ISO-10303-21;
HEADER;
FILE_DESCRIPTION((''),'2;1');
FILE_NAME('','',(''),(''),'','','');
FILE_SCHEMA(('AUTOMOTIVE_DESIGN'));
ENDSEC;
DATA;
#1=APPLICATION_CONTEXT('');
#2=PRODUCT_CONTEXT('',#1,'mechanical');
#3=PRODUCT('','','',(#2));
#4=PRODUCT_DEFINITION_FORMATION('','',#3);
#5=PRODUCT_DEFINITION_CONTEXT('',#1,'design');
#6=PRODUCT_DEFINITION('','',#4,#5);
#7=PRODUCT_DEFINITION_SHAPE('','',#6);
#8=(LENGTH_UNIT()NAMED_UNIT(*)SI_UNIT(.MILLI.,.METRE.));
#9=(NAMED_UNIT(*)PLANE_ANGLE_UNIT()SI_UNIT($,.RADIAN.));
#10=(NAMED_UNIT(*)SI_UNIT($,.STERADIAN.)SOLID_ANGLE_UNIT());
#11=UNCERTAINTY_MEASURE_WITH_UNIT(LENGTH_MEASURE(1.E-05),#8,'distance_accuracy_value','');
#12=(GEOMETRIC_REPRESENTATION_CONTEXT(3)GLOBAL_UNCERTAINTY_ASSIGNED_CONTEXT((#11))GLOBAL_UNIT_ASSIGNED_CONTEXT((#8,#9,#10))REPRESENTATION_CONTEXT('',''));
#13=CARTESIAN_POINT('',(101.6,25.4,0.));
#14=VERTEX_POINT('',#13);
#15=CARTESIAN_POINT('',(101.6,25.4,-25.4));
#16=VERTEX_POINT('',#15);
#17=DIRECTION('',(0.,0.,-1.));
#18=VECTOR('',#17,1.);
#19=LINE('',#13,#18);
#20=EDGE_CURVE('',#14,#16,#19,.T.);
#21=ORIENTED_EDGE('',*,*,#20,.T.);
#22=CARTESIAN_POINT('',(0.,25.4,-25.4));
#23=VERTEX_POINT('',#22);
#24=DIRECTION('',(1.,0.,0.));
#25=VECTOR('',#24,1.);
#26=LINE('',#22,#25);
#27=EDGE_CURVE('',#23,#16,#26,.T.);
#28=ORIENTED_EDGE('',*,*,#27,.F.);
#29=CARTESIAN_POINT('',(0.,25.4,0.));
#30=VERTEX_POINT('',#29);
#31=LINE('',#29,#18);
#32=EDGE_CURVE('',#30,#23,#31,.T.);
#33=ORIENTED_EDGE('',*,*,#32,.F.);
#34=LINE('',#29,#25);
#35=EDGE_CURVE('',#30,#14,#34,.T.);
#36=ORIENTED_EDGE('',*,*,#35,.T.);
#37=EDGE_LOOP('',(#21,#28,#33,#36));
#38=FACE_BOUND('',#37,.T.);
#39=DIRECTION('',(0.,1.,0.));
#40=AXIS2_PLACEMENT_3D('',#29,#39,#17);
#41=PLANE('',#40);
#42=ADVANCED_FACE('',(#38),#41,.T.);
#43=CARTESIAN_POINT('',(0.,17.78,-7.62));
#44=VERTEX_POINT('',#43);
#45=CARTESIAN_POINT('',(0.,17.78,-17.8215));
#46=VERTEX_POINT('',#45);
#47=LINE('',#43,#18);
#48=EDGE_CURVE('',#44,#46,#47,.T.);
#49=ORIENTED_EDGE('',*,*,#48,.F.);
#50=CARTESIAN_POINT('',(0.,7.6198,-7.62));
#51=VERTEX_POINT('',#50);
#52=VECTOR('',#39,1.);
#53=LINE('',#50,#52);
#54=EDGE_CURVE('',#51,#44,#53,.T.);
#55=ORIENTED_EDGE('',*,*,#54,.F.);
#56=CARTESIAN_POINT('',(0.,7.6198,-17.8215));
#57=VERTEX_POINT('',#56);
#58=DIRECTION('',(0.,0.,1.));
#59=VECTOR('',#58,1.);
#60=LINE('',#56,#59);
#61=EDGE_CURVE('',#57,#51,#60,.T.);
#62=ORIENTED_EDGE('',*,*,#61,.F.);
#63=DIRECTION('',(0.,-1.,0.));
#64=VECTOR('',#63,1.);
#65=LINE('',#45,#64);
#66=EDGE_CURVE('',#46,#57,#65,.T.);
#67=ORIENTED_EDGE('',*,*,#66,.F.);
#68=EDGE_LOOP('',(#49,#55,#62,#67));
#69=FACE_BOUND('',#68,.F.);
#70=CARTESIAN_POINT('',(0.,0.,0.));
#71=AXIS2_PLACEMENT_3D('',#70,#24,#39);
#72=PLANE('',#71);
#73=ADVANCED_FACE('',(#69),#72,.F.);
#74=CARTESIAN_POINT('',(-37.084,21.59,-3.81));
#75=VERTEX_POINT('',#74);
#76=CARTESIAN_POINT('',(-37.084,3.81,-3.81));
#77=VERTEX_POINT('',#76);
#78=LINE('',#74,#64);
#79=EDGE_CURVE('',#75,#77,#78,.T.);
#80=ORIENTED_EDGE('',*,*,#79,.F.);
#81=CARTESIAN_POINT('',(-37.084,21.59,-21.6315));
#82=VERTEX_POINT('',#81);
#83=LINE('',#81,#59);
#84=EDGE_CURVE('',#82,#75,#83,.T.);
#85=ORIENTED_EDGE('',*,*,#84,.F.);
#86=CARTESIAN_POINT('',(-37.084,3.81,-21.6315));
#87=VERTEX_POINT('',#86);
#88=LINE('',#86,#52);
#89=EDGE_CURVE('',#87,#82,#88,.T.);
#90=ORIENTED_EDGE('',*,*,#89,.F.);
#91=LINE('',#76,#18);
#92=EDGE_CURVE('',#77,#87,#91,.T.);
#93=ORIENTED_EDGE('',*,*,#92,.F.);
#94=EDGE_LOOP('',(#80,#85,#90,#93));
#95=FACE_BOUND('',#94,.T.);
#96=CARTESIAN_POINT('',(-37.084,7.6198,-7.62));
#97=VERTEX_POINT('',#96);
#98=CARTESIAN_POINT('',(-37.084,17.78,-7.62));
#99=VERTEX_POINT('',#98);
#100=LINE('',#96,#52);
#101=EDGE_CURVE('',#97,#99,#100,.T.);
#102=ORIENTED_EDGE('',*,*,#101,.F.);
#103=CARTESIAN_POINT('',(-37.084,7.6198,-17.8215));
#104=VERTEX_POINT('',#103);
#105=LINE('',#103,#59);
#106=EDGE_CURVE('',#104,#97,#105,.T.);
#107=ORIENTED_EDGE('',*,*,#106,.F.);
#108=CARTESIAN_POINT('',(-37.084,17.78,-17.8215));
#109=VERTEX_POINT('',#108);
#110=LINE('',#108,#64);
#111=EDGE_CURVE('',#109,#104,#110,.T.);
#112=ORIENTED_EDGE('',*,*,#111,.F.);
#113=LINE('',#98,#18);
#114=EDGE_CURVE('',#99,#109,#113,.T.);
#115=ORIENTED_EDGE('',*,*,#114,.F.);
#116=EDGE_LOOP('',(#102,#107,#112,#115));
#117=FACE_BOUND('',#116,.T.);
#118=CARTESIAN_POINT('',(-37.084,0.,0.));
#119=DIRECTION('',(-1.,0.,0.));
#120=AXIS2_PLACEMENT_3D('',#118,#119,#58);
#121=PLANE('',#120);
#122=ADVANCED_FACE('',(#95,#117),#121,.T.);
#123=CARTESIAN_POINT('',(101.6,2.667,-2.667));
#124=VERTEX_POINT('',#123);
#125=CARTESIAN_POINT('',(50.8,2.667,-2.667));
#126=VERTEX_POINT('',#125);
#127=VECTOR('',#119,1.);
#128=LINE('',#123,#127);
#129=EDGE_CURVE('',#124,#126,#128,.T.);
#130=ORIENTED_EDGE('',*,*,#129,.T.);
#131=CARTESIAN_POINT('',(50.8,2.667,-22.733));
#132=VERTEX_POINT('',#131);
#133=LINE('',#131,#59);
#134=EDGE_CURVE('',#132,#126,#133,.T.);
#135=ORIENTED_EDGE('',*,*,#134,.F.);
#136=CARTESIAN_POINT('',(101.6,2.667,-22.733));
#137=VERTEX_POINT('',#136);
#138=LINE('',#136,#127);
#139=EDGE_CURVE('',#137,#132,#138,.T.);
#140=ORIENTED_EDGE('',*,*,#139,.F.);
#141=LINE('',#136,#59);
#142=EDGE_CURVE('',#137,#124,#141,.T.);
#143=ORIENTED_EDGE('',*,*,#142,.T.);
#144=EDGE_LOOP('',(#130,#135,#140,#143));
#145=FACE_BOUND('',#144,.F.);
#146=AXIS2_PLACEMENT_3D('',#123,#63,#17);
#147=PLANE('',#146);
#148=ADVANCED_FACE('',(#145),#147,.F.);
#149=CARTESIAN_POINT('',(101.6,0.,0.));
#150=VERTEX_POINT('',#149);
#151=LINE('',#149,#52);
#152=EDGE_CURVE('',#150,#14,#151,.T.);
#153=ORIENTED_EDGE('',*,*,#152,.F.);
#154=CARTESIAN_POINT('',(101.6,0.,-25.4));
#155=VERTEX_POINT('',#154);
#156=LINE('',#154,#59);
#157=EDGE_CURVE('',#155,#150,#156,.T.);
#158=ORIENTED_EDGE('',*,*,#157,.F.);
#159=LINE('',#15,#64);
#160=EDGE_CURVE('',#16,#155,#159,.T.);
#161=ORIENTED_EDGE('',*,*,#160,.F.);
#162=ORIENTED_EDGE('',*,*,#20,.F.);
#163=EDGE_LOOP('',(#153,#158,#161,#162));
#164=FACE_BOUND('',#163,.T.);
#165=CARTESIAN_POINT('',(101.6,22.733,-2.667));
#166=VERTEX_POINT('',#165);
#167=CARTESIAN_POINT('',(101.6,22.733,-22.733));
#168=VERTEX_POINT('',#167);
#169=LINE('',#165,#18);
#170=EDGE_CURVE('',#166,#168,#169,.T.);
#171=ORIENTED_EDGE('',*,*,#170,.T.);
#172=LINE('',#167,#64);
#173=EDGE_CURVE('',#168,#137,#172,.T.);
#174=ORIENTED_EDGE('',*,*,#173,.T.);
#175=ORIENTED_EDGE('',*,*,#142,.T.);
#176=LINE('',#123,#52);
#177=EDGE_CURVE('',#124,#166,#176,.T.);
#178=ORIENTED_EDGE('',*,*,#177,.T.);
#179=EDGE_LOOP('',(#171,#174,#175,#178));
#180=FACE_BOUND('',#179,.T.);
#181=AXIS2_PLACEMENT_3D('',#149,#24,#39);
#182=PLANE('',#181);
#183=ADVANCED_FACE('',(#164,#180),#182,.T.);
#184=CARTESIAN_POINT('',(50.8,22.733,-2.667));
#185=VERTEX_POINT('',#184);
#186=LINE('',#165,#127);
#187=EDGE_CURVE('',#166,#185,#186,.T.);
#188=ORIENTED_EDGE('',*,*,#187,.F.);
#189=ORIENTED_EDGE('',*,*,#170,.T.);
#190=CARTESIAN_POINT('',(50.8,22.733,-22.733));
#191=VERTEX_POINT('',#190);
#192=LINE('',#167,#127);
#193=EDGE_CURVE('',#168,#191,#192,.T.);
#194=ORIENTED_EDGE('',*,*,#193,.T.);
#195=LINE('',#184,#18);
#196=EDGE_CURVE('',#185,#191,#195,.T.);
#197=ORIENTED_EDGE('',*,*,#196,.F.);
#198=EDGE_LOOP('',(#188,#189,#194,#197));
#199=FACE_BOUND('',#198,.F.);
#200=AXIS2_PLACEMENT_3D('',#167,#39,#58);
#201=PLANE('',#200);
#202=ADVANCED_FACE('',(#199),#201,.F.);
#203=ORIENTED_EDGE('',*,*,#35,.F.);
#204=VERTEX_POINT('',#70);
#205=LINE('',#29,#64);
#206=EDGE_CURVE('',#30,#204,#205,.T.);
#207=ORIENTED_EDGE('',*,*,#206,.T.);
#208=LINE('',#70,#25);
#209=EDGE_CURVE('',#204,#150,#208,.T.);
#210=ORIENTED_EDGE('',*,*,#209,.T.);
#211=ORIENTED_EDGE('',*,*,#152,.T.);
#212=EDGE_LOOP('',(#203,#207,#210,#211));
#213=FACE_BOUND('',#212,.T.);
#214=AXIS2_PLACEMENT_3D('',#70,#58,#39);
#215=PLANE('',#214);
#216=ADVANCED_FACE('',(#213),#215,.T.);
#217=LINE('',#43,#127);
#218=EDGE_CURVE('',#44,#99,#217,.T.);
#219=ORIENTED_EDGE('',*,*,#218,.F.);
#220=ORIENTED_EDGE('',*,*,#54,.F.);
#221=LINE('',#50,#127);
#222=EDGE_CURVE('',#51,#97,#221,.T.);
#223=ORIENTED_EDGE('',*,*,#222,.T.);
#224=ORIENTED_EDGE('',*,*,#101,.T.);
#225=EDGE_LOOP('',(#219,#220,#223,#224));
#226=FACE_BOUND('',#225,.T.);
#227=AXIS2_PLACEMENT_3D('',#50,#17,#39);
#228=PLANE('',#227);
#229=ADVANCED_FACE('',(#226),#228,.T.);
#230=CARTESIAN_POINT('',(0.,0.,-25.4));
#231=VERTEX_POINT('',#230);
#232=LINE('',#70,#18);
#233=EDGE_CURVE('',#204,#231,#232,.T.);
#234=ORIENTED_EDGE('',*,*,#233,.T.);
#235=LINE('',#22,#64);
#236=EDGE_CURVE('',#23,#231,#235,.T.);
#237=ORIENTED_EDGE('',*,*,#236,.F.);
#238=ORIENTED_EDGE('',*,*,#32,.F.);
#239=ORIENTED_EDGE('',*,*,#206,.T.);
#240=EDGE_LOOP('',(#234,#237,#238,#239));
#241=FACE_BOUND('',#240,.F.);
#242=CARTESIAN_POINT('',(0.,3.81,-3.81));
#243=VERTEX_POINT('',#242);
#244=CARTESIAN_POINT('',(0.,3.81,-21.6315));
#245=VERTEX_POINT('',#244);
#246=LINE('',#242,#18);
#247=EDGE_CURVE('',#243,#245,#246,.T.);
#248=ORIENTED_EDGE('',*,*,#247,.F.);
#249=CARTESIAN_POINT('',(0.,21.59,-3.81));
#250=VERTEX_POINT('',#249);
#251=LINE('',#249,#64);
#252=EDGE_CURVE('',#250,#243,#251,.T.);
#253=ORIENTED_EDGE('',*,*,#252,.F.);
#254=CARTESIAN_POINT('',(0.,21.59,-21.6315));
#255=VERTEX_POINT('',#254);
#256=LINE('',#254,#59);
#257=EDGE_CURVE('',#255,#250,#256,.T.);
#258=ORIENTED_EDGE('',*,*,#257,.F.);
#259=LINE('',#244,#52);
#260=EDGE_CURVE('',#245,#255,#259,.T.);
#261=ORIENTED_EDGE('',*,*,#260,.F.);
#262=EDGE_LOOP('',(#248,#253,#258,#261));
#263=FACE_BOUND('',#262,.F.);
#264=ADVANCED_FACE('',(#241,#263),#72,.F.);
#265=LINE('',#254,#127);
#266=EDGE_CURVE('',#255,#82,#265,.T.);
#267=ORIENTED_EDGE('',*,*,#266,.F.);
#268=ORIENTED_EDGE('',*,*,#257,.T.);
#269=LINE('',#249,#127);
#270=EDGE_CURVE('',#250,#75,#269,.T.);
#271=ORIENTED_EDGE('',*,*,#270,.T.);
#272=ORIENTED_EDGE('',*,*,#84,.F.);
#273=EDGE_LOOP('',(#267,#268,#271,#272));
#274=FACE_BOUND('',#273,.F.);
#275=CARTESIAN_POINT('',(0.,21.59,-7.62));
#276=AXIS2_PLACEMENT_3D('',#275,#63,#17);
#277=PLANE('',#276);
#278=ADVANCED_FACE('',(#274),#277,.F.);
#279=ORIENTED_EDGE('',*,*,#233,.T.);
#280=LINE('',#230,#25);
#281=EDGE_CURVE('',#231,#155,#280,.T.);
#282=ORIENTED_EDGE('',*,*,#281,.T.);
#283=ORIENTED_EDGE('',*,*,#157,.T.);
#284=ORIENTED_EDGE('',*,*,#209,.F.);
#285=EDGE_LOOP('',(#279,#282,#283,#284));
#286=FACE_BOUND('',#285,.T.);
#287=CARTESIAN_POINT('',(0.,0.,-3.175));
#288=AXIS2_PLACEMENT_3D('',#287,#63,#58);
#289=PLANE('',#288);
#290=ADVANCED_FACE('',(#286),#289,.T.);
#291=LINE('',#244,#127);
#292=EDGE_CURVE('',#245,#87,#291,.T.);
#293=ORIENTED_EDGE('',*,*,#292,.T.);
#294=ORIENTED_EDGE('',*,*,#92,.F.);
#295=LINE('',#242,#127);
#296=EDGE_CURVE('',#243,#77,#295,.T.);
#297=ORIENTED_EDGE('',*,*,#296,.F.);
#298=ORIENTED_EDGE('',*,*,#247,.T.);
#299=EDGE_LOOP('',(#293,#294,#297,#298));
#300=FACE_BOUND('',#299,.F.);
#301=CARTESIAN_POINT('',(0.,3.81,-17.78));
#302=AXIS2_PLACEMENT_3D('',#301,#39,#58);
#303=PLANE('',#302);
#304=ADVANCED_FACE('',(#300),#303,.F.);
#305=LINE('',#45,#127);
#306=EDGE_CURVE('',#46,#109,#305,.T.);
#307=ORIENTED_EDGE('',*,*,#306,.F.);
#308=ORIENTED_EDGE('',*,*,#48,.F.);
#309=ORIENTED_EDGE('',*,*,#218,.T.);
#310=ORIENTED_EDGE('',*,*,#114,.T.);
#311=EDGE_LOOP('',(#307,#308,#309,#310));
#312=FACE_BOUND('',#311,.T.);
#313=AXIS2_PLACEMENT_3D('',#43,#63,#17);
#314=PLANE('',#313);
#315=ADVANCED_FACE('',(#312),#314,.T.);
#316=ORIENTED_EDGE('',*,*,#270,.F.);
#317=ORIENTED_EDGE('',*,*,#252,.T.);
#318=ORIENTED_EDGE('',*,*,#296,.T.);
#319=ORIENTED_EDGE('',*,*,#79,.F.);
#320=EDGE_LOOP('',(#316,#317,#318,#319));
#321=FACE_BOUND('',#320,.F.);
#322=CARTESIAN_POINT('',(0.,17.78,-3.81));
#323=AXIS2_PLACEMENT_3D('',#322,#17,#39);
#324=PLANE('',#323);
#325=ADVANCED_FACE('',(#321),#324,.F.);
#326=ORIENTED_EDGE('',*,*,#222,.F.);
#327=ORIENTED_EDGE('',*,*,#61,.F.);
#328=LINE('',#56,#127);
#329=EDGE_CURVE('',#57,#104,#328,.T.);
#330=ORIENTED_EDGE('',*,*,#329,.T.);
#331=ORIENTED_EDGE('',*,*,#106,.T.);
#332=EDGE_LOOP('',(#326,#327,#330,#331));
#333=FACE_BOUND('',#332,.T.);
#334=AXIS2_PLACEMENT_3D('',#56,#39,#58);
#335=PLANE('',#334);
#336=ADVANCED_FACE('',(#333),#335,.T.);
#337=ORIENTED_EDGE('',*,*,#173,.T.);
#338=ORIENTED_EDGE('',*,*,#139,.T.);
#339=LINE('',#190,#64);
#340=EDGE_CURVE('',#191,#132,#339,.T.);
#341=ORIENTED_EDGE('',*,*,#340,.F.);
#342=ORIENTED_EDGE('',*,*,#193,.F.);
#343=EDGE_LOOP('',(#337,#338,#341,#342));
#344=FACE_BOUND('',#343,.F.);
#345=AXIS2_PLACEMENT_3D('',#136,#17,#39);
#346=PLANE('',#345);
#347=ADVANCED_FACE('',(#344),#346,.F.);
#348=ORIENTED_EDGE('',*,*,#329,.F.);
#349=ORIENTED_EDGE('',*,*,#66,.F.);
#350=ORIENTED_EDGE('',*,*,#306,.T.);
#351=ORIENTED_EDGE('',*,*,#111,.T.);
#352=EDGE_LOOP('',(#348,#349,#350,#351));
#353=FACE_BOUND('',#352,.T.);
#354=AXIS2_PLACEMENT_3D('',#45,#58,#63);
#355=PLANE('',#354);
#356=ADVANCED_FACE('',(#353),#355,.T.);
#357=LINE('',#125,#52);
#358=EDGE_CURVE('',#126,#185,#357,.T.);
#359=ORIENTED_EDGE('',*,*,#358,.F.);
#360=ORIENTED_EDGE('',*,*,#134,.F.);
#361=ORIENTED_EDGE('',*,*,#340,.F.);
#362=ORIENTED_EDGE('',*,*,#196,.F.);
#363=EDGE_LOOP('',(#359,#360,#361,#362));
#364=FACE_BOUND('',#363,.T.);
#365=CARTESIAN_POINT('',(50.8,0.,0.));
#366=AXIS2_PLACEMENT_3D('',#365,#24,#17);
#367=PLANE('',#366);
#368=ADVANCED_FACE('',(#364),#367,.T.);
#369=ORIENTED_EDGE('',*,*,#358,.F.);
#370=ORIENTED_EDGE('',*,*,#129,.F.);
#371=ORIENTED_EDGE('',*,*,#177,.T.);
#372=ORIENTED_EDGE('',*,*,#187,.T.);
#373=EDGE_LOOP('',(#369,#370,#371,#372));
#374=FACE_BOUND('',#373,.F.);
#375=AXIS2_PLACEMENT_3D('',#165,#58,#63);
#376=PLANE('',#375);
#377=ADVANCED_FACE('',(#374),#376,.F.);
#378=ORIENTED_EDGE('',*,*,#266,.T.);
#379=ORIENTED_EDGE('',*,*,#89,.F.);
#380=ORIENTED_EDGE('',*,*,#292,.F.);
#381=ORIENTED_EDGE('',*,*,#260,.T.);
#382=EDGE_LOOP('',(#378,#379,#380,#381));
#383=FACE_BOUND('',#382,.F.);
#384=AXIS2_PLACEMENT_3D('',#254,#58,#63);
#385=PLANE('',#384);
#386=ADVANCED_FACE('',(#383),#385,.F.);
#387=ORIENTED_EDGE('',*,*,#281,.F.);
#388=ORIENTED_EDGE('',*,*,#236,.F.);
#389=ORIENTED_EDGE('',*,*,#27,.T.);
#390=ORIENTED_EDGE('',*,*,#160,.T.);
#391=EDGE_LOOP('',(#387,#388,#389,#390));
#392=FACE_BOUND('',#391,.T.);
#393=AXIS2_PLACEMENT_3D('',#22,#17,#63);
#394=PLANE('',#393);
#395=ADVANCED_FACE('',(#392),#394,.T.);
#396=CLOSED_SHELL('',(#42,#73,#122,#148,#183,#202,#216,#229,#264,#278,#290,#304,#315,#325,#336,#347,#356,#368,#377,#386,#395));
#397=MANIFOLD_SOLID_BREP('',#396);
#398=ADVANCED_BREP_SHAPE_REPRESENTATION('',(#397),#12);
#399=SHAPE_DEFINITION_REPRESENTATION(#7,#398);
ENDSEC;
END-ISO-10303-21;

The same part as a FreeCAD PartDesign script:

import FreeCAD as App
import Part
import Sketcher
from FreeCAD import Vector
Q = App.Units.Quantity

doc = App.newDocument("Part")
body = doc.addObject("PartDesign::Body", "Body")

# Sketch on YZ plane
sketch1 = body.newObject("Sketcher::SketchObject", "Sketch")
sketch1.AttachmentSupport = (doc.getObject("YZ_Plane"), [""])
sketch1.MapMode = "FlatFace"
sketch1.addGeometry([
    Part.LineSegment(Vector(0, 0, 0), Vector(0, -25, 0)),
    Part.LineSegment(Vector(0, -25, 0), Vector(25, -25, 0)),
    Part.LineSegment(Vector(25, -25, 0), Vector(25, 0, 0)),
    Part.LineSegment(Vector(25, 0, 0), Vector(0, 0, 0)),
], False)
sketch1.addConstraint([
    Sketcher.Constraint("Coincident", 0, 2, 1, 1),
    Sketcher.Constraint("Coincident", 1, 2, 2, 1),
    Sketcher.Constraint("Coincident", 2, 2, 3, 1),
    Sketcher.Constraint("Coincident", 3, 2, 0, 1),
    Sketcher.Constraint("Vertical", 0),
    Sketcher.Constraint("Horizontal", 1),
    Sketcher.Constraint("Vertical", 2),
    Sketcher.Constraint("Horizontal", 3),
    Sketcher.Constraint("Coincident", 3, 2, -1, 1),
    Sketcher.Constraint("Equal", 3, 0),
    Sketcher.Constraint("DistanceX", 1, 1, 1, 2, Q("1 in")),
])
pad1 = body.newObject("PartDesign::Pad", "Pad")
pad1.Profile = sketch1
pad1.Length = Q("4 in")

# Sketch on YZ plane
sketch2 = body.newObject("Sketcher::SketchObject", "Sketch001")
sketch2.AttachmentSupport = (doc.getObject("YZ_Plane"), [""])
sketch2.MapMode = "FlatFace"
sketch2.AttachmentOffset = App.Placement(Vector(0, 0, 4 * 25.4), App.Rotation())
sketch2.addGeometry([
    Part.LineSegment(Vector(3, -23, 0), Vector(23, -23, 0)),
    Part.LineSegment(Vector(23, -23, 0), Vector(23, -3, 0)),
    Part.LineSegment(Vector(23, -3, 0), Vector(3, -3, 0)),
    Part.LineSegment(Vector(3, -3, 0), Vector(3, -23, 0)),
], False)
sketch2.addConstraint([
    Sketcher.Constraint("Coincident", 0, 2, 1, 1),
    Sketcher.Constraint("Coincident", 1, 2, 2, 1),
    Sketcher.Constraint("Coincident", 2, 2, 3, 1),
    Sketcher.Constraint("Coincident", 3, 2, 0, 1),
    Sketcher.Constraint("Horizontal", 0),
    Sketcher.Constraint("Vertical", 1),
    Sketcher.Constraint("Horizontal", 2),
    Sketcher.Constraint("Vertical", 3),
    Sketcher.Constraint("Equal", 2, 1),
    Sketcher.Constraint("DistanceX", 0, 1, 0, 2, Q("0.79 in")),
    Sketcher.Constraint("DistanceX", -1, 1, 0, 2, Q("0.895 in")),
    Sketcher.Constraint("DistanceY", 0, 2, -1, 1, Q("0.895 in")),
])
pocket1 = body.newObject("PartDesign::Pocket", "Pocket")
pocket1.Profile = sketch2
pocket1.Length = Q("2 in")

# Sketch on YZ plane
sketch3 = body.newObject("Sketcher::SketchObject", "Sketch002")
sketch3.AttachmentSupport = (doc.getObject("YZ_Plane"), [""])
sketch3.MapMode = "FlatFace"
sketch3.addGeometry([
    Part.LineSegment(Vector(22, -22, 0), Vector(4, -22, 0)),  # 0
    Part.LineSegment(Vector(4, -22, 0), Vector(4, -4, 0)),  # 1
    Part.LineSegment(Vector(4, -4, 0), Vector(22, -4, 0)),  # 2
    Part.LineSegment(Vector(22, -4, 0), Vector(22, -22, 0)),  # 3
    Part.LineSegment(Vector(8, -8, 0), Vector(8, -18, 0)),  # 4
    Part.LineSegment(Vector(8, -18, 0), Vector(18, -18, 0)),  # 5
    Part.LineSegment(Vector(18, -18, 0), Vector(18, -8, 0)),  # 6
    Part.LineSegment(Vector(18, -8, 0), Vector(8, -8, 0)),  # 7
], False)
sketch3.addConstraint([
    Sketcher.Constraint("Coincident", 0, 2, 1, 1),
    Sketcher.Constraint("Coincident", 1, 2, 2, 1),
    Sketcher.Constraint("Coincident", 2, 2, 3, 1),
    Sketcher.Constraint("Coincident", 3, 2, 0, 1),
    Sketcher.Constraint("Coincident", 4, 2, 5, 1),
    Sketcher.Constraint("Coincident", 5, 2, 6, 1),
    Sketcher.Constraint("Coincident", 6, 2, 7, 1),
    Sketcher.Constraint("Coincident", 7, 2, 4, 1),
    Sketcher.Constraint("Horizontal", 0),
    Sketcher.Constraint("Vertical", 1),
    Sketcher.Constraint("Horizontal", 2),
    Sketcher.Constraint("Vertical", 3),
    Sketcher.Constraint("Vertical", 4),
    Sketcher.Constraint("Horizontal", 5),
    Sketcher.Constraint("Vertical", 6),
    Sketcher.Constraint("Horizontal", 7),
    Sketcher.Constraint("DistanceX", 0, 2, 0, 1, Q("0.7 in")),
    Sketcher.Constraint("DistanceX", 5, 1, 5, 2, Q("0.4 in")),
    Sketcher.Constraint("DistanceX", -1, 1, 4, 2, Q("0.3 in")),
    Sketcher.Constraint("DistanceY", 6, 2, -1, 1, Q("0.3 in")),
    Sketcher.Constraint("DistanceX", -1, 1, 0, 2, Q("0.15 in")),
    Sketcher.Constraint("DistanceY", 1, 2, -1, 1, Q("0.15 in")),
    Sketcher.Constraint("DistanceY", 0, 2, 4, 2, Q("0.15 in")),
    Sketcher.Constraint("DistanceY", 1, 1, 1, 2, Q("17.8215 mm")),
])
pad2 = body.newObject("PartDesign::Pad", "Pad001")
pad2.Profile = sketch3
pad2.Length = Q("1.46 in")
pad2.Reversed = True

doc.recompute()
